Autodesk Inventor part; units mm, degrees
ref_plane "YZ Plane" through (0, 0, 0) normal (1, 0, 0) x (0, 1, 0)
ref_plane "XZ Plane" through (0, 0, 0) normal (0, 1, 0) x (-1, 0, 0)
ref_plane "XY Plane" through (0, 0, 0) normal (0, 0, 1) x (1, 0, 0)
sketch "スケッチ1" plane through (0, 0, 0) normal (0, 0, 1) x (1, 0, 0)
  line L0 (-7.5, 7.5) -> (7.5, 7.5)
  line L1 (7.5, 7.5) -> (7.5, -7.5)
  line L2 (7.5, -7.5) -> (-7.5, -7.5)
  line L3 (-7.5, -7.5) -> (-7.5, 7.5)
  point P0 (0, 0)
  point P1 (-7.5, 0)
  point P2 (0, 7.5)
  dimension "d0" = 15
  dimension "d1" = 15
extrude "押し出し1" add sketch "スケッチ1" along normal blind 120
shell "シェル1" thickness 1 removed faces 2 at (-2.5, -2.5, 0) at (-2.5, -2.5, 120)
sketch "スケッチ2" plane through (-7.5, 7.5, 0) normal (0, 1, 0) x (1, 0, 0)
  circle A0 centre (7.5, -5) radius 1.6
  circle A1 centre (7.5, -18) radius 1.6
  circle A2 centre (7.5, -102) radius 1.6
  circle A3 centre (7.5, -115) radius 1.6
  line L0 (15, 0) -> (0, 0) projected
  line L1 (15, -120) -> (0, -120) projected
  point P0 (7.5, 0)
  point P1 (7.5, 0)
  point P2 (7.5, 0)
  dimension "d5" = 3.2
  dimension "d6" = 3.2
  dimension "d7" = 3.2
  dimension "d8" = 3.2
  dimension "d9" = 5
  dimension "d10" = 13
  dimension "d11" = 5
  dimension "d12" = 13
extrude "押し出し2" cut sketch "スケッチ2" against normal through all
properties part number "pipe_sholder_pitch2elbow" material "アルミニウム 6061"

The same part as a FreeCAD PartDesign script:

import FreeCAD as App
import Part
import Sketcher

V = App.Vector
Q = App.Units.Quantity


def faces_at(feature, points):
    """Names of the faces that lie closest to the given points."""
    faces = feature.Shape.Faces
    near = lambda p: min(range(len(faces)), key=lambda i: faces[i].distToShape(Part.Vertex(*p))[0])
    return sorted({f"Face{near(p) + 1}" for p in points})

doc = App.newDocument("Part")
body = doc.addObject("PartDesign::Body", "Body")

# Sketch on XY plane
sketch1 = doc.addObject("Sketcher::SketchObject", "Sketch")
body.addObject(sketch1)
sketch1.AttachmentSupport = (doc.XY_Plane, [""])
sketch1.MapMode = "FlatFace"
sketch1.addGeometry(Part.LineSegment(V(7.5, 7.5, 0), V(-7.5, 7.5, 0)), False)
sketch1.addGeometry(Part.LineSegment(V(-7.5, 7.5, 0), V(-7.5, -7.5, 0)), False)
sketch1.addGeometry(Part.LineSegment(V(-7.5, -7.5, 0), V(7.5, -7.5, 0)), False)
sketch1.addGeometry(Part.LineSegment(V(7.5, -7.5, 0), V(7.5, 7.5, 0)), False)
sketch1.addConstraint(Sketcher.Constraint("Coincident", 0, 2, 1, 1))
sketch1.addConstraint(Sketcher.Constraint("Coincident", 1, 2, 2, 1))
sketch1.addConstraint(Sketcher.Constraint("Coincident", 2, 2, 3, 1))
sketch1.addConstraint(Sketcher.Constraint("Coincident", 3, 2, 0, 1))
sketch1.addConstraint(Sketcher.Constraint("Horizontal", 0))
sketch1.addConstraint(Sketcher.Constraint("Vertical", 1))
sketch1.addConstraint(Sketcher.Constraint("Horizontal", 2))
sketch1.addConstraint(Sketcher.Constraint("Vertical", 3))
sketch1.addConstraint(Sketcher.Constraint("Symmetric", 0, 2, 2, 2, -1, 1))
sketch1.addConstraint(Sketcher.Constraint("Equal", 2, 1))
sketch1.addConstraint(Sketcher.Constraint("DistanceX", 0, 2, 0, 1, Q("15 mm")))
pad1 = doc.addObject("PartDesign::Pad", "Pad")
body.addObject(pad1)
pad1.Profile = sketch1
pad1.Length = 120
doc.recompute()

thickness = doc.addObject("PartDesign::Thickness", "Thickness")
body.addObject(thickness)
thickness.Base = (pad1, faces_at(pad1, [(-2.5, -2.5, 0), (-2.5, -2.5, 120)]))
thickness.Value = 1
thickness.Reversed = True
thickness.Join = "Intersection"

# Sketch on XZ plane
sketch2 = doc.addObject("Sketcher::SketchObject", "Sketch001")
body.addObject(sketch2)
sketch2.AttachmentSupport = (doc.XZ_Plane, [""])
sketch2.MapMode = "FlatFace"
sketch2.AttachmentOffset = App.Placement(V(0, 0, -7.5), App.Rotation())
sketch2.addGeometry(Part.Circle(V(0, 5, 0), V(0, 0, 1), 1.6), False)
sketch2.addGeometry(Part.Circle(V(0, 18, 0), V(0, 0, 1), 1.6), False)
sketch2.addGeometry(Part.Circle(V(0, 102, 0), V(0, 0, 1), 1.6), False)
sketch2.addGeometry(Part.Circle(V(0, 115, 0), V(0, 0, 1), 1.6), False)
sketch2.addConstraint(Sketcher.Constraint("Equal", 0, 1))
sketch2.addConstraint(Sketcher.Constraint("Equal", 1, 2))
sketch2.addConstraint(Sketcher.Constraint("Equal", 2, 3))
sketch2.addConstraint(Sketcher.Constraint("PointOnObject", 0, 3, -2))
sketch2.addConstraint(Sketcher.Constraint("PointOnObject", 1, 3, -2))
sketch2.addConstraint(Sketcher.Constraint("PointOnObject", 2, 3, -2))
sketch2.addConstraint(Sketcher.Constraint("PointOnObject", 3, 3, -2))
sketch2.addConstraint(Sketcher.Constraint("Diameter", 0, Q("3.2 mm")))
sketch2.addConstraint(Sketcher.Constraint("DistanceY", -1, 1, 0, 3, Q("5 mm")))
sketch2.addConstraint(Sketcher.Constraint("DistanceY", 0, 3, 1, 3, Q("13 mm")))
sketch2.addConstraint(Sketcher.Constraint("DistanceY", 2, 3, 3, 3, Q("13 mm")))
sketch2.addConstraint(Sketcher.Constraint("DistanceY", -1, 1, 2, 3, Q("102 mm")))
pocket1 = doc.addObject("PartDesign::Pocket", "Pocket")
body.addObject(pocket1)
pocket1.Profile = sketch2
pocket1.Type = "ThroughAll"
pocket1.Reversed = True

doc.recompute()
